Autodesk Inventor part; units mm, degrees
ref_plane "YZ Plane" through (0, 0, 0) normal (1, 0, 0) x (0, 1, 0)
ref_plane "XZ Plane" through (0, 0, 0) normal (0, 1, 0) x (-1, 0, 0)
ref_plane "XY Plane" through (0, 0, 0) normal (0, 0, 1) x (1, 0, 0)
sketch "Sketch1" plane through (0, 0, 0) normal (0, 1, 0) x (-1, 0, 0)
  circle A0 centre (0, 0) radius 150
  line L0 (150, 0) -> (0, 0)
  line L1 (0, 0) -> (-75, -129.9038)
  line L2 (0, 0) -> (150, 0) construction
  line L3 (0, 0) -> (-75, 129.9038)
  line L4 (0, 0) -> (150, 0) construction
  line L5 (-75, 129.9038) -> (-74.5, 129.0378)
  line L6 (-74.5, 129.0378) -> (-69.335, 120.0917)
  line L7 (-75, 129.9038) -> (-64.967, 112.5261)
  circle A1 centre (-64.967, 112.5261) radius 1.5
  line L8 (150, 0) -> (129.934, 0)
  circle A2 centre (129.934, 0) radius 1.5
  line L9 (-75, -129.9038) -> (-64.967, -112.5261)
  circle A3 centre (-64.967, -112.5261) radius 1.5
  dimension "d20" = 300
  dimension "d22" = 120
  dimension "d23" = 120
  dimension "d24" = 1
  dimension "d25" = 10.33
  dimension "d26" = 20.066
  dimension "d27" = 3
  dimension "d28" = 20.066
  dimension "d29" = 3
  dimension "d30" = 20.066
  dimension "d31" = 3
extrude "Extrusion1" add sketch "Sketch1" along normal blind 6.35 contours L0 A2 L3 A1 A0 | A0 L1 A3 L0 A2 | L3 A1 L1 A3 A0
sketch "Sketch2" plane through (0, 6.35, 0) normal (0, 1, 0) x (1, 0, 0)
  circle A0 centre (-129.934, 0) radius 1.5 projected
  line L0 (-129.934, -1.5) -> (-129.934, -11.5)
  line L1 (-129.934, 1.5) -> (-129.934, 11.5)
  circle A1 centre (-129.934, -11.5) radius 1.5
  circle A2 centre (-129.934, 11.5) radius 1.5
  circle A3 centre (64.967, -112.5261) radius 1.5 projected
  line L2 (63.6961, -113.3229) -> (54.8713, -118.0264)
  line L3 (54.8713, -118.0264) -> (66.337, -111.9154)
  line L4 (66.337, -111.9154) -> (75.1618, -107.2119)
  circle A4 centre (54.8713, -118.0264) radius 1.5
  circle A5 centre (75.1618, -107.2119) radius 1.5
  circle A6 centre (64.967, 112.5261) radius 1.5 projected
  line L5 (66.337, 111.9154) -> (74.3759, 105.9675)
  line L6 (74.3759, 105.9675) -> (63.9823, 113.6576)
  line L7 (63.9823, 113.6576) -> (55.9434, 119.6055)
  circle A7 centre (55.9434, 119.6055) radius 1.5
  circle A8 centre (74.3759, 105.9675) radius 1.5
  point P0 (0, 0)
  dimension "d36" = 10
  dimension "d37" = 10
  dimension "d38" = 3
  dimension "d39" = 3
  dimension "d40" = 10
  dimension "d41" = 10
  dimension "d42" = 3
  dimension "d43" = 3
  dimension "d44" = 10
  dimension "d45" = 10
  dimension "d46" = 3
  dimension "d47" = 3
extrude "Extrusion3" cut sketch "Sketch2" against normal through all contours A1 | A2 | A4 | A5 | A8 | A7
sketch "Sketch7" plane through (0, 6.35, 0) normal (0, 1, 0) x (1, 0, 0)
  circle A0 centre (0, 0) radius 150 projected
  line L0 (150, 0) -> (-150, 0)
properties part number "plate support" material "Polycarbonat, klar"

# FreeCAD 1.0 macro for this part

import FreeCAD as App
import Part
import Sketcher

V = App.Vector
Q = App.Units.Quantity

doc = App.newDocument("Part")
body = doc.addObject("PartDesign::Body", "Body")

# Sketch on XZ plane
sketch1 = body.newObject("Sketcher::SketchObject", "Sketch")
sketch1.AttachmentSupport = (doc.getObject("XZ_Plane"), [""])
sketch1.MapMode = "FlatFace"
sketch1.addGeometry(Part.Circle(V(0, 0, 0), V(0, 0, 1), 150), False)
sketch1.addGeometry(Part.Circle(V(-129.9, 0, 0), V(0, 0, 1), 1.5), False)
sketch1.addGeometry(Part.Circle(V(65, 112.5, 0), V(0, 0, 1), 1.5), False)
sketch1.addGeometry(Part.Circle(V(65, -112.5, 0), V(0, 0, 1), 1.5), False)
sketch1.addConstraint(Sketcher.Constraint("Coincident", 0, 3, -1, 1))
sketch1.addConstraint(Sketcher.Constraint("Equal", 1, 2))
sketch1.addConstraint(Sketcher.Constraint("Equal", 2, 3))
sketch1.addConstraint(Sketcher.Constraint("Symmetric", 2, 3, 3, 3, -1))
sketch1.addConstraint(Sketcher.Constraint("PointOnObject", 1, 3, -1))
sketch1.addConstraint(Sketcher.Constraint("Diameter", 0, Q("300 mm")))
sketch1.addConstraint(Sketcher.Constraint("Diameter", 1, Q("3 mm")))
sketch1.addConstraint(Sketcher.Constraint("DistanceX", 1, 3, -1, 1, Q("129.934 mm")))
sketch1.addConstraint(Sketcher.Constraint("DistanceX", -1, 1, 2, 3, Q("64.967 mm")))
sketch1.addConstraint(Sketcher.Constraint("DistanceY", -1, 1, 2, 3, Q("112.526 mm")))
pad1 = body.newObject("PartDesign::Pad", "Pad")
pad1.Profile = sketch1
pad1.Length = 6.35
pad1.Reversed = True

# Sketch on XZ plane
sketch2 = body.newObject("Sketcher::SketchObject", "Sketch001")
sketch2.AttachmentSupport = (doc.getObject("XZ_Plane"), [""])
sketch2.MapMode = "FlatFace"
sketch2.AttachmentOffset = App.Placement(V(0, 0, -6.35), App.Rotation())
sketch2.addGeometry(Part.Circle(V(-129.9, 11.5, 0), V(0, 0, 1), 1.5), False)
sketch2.addGeometry(Part.Circle(V(-129.9, -11.5, 0), V(0, 0, 1), 1.5), False)
sketch2.addGeometry(Part.Circle(V(54.9, 118, 0), V(0, 0, 1), 1.5), False)
sketch2.addGeometry(Part.Circle(V(75.2, 107.2, 0), V(0, 0, 1), 1.5), False)
sketch2.addGeometry(Part.Circle(V(74.4, -106, 0), V(0, 0, 1), 1.5), False)
sketch2.addGeometry(Part.Circle(V(55.9, -119.6, 0), V(0, 0, 1), 1.5), False)
sketch2.addConstraint(Sketcher.Constraint("Equal", 0, 1))
sketch2.addConstraint(Sketcher.Constraint("Equal", 1, 2))
sketch2.addConstraint(Sketcher.Constraint("Equal", 2, 3))
sketch2.addConstraint(Sketcher.Constraint("Equal", 3, 4))
sketch2.addConstraint(Sketcher.Constraint("Equal", 4, 5))
sketch2.addConstraint(Sketcher.Constraint("Symmetric", 0, 3, 1, 3, -1))
sketch2.addConstraint(Sketcher.Constraint("Diameter", 0, Q("3 mm")))
sketch2.addConstraint(Sketcher.Constraint("DistanceY", 1, 3, 0, 3, Q("23 mm")))
sketch2.addConstraint(Sketcher.Constraint("DistanceX", 1, 3, 4, 3, Q("204.31 mm")))
sketch2.addConstraint(Sketcher.Constraint("DistanceX", 0, 3, -1, 1, Q("129.934 mm")))
sketch2.addConstraint(Sketcher.Constraint("DistanceY", -1, 1, 3, 3, Q("107.212 mm")))
sketch2.addConstraint(Sketcher.Constraint("DistanceX", 4, 3, 3, 3, Q("0.786 mm")))
sketch2.addConstraint(Sketcher.Constraint("DistanceY", 4, 3, 2, 3, Q("223.994 mm")))
sketch2.addConstraint(Sketcher.Constraint("DistanceY", 5, 3, 4, 3, Q("13.638 mm")))
sketch2.addConstraint(Sketcher.Constraint("DistanceX", 2, 3, 5, 3, Q("1.072 mm")))
sketch2.addConstraint(Sketcher.Constraint("DistanceX", -1, 1, 2, 3, Q("54.8713 mm")))
sketch2.addConstraint(Sketcher.Constraint("DistanceY", -1, 1, 2, 3, Q("118.0264 mm")))
pocket1 = body.newObject("PartDesign::Pocket", "Pocket")
pocket1.Profile = sketch2
pocket1.Type = "ThroughAll"
pocket1.Reversed = True

doc.recompute()
